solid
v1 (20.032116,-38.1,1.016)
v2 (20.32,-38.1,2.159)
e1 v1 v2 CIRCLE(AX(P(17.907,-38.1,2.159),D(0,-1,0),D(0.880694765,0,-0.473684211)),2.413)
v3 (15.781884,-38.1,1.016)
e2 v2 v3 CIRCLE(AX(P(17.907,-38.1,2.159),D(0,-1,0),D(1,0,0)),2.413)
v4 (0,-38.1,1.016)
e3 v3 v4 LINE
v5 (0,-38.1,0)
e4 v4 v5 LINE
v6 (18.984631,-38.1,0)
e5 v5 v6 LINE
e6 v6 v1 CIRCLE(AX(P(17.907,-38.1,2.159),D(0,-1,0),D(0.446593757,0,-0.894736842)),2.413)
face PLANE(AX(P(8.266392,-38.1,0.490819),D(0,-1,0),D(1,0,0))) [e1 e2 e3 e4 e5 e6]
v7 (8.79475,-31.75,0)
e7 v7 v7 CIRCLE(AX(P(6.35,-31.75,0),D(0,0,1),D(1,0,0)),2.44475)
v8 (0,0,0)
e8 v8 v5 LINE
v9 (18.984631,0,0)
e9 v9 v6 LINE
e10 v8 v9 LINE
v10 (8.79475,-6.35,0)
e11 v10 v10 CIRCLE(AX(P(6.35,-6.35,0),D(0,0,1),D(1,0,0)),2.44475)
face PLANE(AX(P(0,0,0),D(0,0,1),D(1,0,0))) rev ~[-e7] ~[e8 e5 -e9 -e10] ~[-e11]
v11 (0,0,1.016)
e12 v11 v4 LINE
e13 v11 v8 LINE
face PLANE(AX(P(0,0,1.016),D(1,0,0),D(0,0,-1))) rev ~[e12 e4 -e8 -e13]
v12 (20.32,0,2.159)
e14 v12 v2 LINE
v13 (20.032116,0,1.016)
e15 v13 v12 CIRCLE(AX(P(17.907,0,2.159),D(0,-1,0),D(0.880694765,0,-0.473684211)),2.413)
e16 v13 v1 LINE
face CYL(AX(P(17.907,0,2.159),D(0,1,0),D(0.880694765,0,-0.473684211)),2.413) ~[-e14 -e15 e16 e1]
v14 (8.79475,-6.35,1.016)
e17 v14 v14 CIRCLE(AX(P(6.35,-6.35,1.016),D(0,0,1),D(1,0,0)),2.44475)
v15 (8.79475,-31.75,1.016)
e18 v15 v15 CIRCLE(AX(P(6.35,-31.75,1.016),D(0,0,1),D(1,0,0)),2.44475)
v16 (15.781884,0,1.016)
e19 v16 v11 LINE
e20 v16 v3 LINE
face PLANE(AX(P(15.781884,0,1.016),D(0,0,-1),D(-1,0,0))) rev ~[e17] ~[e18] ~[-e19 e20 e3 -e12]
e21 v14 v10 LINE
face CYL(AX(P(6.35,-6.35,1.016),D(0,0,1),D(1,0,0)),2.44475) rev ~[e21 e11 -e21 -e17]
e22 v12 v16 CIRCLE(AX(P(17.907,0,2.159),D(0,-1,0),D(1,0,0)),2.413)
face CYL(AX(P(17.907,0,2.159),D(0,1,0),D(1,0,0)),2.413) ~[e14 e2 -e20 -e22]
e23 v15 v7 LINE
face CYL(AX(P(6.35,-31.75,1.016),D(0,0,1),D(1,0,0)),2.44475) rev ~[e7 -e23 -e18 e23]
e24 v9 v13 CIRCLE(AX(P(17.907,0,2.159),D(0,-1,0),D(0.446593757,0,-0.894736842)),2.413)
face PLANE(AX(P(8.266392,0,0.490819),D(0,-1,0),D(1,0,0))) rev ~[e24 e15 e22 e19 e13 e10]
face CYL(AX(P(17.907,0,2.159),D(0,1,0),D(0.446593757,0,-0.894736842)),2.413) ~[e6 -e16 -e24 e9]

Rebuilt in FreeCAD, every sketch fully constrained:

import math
import FreeCAD as App
import Part
import Sketcher

V = App.Vector
Q = App.Units.Quantity

doc = App.newDocument("Part")
body = doc.addObject("PartDesign::Body", "Body")

sketch1 = body.newObject("Sketcher::SketchObject", "Sketch")
sketch1.AttachmentSupport = (doc.getObject("XZ_Plane"), [""])
sketch1.MapMode = "FlatFace"
sketch1.addGeometry([
    Part.LineSegment(V(0, 1, 0), V(0, 0, 0)),
    Part.LineSegment(V(0, 0, 0), V(19, 0, 0)),
    Part.ArcOfCircle(Part.Circle(V(17.9, 2.2, 0), V(0, 0, 1), 2.4), math.radians(-63), math.radians(-28)),
    Part.ArcOfCircle(Part.Circle(V(17.9, 2.2, 0), V(0, 0, 1), 2.4), math.radians(-28), math.radians(0)),
    Part.ArcOfCircle(Part.Circle(V(17.9, 2.2, 0), V(0, 0, 1), 2.4), math.radians(0), math.radians(208)),
    Part.LineSegment(V(15.8, 1, 0), V(0, 1, 0)),
], False)
sketch1.addConstraint([
    Sketcher.Constraint("Coincident", 0, 2, 1, 1),
    Sketcher.Constraint("Coincident", 1, 2, 2, 1),
    Sketcher.Constraint("Tangent", 2, 2, 3, 1),
    Sketcher.Constraint("Tangent", 3, 2, 4, 1),
    Sketcher.Constraint("Coincident", 4, 2, 5, 1),
    Sketcher.Constraint("Coincident", 5, 2, 0, 1),
    Sketcher.Constraint("Vertical", 0),
    Sketcher.Constraint("Horizontal", 1),
    Sketcher.Constraint("Horizontal", 5),
    Sketcher.Constraint("Coincident", 0, 2, -1, 1),
    Sketcher.Constraint("Coincident", 4, 3, 2, 3),
    Sketcher.Constraint("Horizontal", 4, 3, 3, 2),
    Sketcher.Constraint("Horizontal", 2, 2, 4, 2),
    Sketcher.Constraint("Radius", 2, Q("0.095 in")),
    Sketcher.Constraint("DistanceY", 0, 2, 0, 1, Q("0.04 in")),
    Sketcher.Constraint("DistanceX", -1, 1, 3, 2, Q("0.8 in")),
    Sketcher.Constraint("DistanceY", -1, 1, 2, 3, Q("0.085 in")),
])
pad1 = body.newObject("PartDesign::Pad", "Pad")
pad1.Profile = sketch1
pad1.Length = Q("1.5 in")

sketch2 = body.newObject("Sketcher::SketchObject", "Sketch001")
sketch2.AttachmentSupport = (doc.getObject("XY_Plane"), [""])
sketch2.MapMode = "FlatFace"
sketch2.AttachmentOffset = App.Placement(V(0, 0, 0.04 * 25.4), App.Rotation())
sketch2.addGeometry([
    Part.Circle(V(6.3, -6.3, 0), V(0, 0, 1), 2.4),
    Part.Circle(V(6.3, -31.8, 0), V(0, 0, 1), 2.4),
], False)
sketch2.addConstraint([
    Sketcher.Constraint("Equal", 0, 1),
    Sketcher.Constraint("Vertical", 0, 3, 1, 3),
    Sketcher.Constraint("DistanceY", 1, 3, 0, 3, Q("1 in")),
    Sketcher.Constraint("Diameter", 0, Q("0.1925 in")),
    Sketcher.Constraint("DistanceX", -1, 1, 0, 3, Q("0.25 in")),
    Sketcher.Constraint("DistanceY", 0, 3, -1, 1, Q("0.25 in")),
])
pocket1 = body.newObject("PartDesign::Pocket", "Pocket")
pocket1.Profile = sketch2
pocket1.Length = Q("1 in")

doc.recompute()
